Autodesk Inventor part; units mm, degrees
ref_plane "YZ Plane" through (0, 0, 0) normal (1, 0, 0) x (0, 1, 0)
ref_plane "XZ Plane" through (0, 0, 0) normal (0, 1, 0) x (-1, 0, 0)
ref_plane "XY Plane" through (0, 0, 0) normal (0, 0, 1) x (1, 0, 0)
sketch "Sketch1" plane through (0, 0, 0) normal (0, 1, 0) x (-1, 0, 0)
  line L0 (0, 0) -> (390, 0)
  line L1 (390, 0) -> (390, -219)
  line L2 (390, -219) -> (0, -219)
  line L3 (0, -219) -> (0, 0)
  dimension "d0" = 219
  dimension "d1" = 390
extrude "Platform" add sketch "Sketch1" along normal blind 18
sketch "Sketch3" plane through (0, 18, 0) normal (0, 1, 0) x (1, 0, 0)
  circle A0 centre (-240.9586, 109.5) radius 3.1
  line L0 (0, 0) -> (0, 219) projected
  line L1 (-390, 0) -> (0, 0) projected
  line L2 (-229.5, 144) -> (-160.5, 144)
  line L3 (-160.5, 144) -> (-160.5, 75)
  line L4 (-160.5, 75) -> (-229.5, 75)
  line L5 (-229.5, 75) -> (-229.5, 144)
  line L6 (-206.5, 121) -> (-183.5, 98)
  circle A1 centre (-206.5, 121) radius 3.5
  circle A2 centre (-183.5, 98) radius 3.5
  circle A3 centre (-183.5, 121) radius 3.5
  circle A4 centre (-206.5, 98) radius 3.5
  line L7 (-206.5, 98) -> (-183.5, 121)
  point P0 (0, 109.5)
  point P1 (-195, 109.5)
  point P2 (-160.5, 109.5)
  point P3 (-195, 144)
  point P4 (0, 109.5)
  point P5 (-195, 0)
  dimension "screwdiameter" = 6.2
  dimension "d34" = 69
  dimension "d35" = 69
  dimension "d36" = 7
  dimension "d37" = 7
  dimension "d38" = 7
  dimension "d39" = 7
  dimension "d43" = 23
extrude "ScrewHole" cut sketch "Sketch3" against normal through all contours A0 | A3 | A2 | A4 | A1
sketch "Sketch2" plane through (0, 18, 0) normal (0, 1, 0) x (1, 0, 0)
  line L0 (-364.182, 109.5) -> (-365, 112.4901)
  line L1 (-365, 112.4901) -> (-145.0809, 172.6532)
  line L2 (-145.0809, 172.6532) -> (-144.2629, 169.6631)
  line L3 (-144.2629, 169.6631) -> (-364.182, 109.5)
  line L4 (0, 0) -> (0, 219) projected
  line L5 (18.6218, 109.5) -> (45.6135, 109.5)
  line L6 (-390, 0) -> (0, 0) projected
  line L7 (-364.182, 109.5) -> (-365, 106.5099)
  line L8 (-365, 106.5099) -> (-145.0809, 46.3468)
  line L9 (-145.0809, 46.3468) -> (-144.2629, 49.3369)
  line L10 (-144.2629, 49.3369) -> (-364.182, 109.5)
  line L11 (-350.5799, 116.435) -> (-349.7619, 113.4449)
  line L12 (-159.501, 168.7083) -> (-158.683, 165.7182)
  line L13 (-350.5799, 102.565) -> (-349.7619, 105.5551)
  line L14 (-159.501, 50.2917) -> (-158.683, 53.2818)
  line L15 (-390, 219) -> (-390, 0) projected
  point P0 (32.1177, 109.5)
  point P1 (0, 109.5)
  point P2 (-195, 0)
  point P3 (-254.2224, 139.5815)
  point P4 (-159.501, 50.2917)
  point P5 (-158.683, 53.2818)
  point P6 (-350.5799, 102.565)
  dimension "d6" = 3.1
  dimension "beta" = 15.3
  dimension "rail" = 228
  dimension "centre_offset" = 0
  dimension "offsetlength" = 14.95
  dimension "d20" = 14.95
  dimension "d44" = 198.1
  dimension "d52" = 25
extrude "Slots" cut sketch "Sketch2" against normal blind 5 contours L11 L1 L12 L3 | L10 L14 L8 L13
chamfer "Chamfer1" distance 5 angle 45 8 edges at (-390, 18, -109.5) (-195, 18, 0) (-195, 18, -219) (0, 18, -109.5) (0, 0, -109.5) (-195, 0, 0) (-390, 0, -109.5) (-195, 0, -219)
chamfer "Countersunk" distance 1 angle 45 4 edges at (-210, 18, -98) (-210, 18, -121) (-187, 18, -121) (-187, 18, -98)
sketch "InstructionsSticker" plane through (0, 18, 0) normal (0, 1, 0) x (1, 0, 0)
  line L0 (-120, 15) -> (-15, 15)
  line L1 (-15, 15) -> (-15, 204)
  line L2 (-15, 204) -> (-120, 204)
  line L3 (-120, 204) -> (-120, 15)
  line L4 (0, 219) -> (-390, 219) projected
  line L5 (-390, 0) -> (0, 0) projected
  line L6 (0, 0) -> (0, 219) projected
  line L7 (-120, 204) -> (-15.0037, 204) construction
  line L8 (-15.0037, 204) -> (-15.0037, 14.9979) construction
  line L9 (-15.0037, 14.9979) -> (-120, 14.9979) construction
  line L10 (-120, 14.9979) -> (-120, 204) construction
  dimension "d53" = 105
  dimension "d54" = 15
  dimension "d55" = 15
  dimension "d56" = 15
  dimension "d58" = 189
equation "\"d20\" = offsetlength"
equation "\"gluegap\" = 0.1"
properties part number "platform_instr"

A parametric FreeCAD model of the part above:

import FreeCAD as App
import Part
import Sketcher
Q = App.Units.Quantity


def edges_at(feature, points):
    """Names of the edges that pass closest to the given points."""
    edges = feature.Shape.Edges
    near = lambda p: min(range(len(edges)), key=lambda i: edges[i].distToShape(Part.Vertex(*p))[0])
    return sorted({f"Edge{near(p) + 1}" for p in points})

doc = App.newDocument("Part")
body = doc.addObject("PartDesign::Body", "Body")

# Sketch on XZ plane
sketch1 = body.newObject("Sketcher::SketchObject", "Sketch")
sketch1.AttachmentSupport = (doc.getObject("XZ_Plane"), [""])
sketch1.MapMode = "FlatFace"
sketch1.addGeometry(Part.LineSegment(App.Vector(-390, 0, 0), App.Vector(0, 0, 0)), False)
sketch1.addGeometry(Part.LineSegment(App.Vector(0, 0, 0), App.Vector(0, -219, 0)), False)
sketch1.addGeometry(Part.LineSegment(App.Vector(0, -219, 0), App.Vector(-390, -219, 0)), False)
sketch1.addGeometry(Part.LineSegment(App.Vector(-390, -219, 0), App.Vector(-390, 0, 0)), False)
sketch1.addConstraint(Sketcher.Constraint("Coincident", 0, 2, 1, 1))
sketch1.addConstraint(Sketcher.Constraint("Coincident", 1, 2, 2, 1))
sketch1.addConstraint(Sketcher.Constraint("Coincident", 2, 2, 3, 1))
sketch1.addConstraint(Sketcher.Constraint("Coincident", 3, 2, 0, 1))
sketch1.addConstraint(Sketcher.Constraint("Horizontal", 0))
sketch1.addConstraint(Sketcher.Constraint("Vertical", 1))
sketch1.addConstraint(Sketcher.Constraint("Horizontal", 2))
sketch1.addConstraint(Sketcher.Constraint("Vertical", 3))
sketch1.addConstraint(Sketcher.Constraint("Coincident", 0, 2, -1, 1))
sketch1.addConstraint(Sketcher.Constraint("DistanceX", 0, 1, 0, 2, Q("390 mm")))
sketch1.addConstraint(Sketcher.Constraint("DistanceY", 1, 2, 1, 1, Q("219 mm")))
pad1 = body.newObject("PartDesign::Pad", "Pad")
pad1.Profile = sketch1
pad1.Length = 18
pad1.Reversed = True

# Sketch on XZ plane
sketch2 = body.newObject("Sketcher::SketchObject", "Sketch001")
sketch2.AttachmentSupport = (doc.getObject("XZ_Plane"), [""])
sketch2.MapMode = "FlatFace"
sketch2.AttachmentOffset = App.Placement(App.Vector(0, 0, -18), App.Rotation())
sketch2.addGeometry(Part.Circle(App.Vector(-241, -109.5, 0), App.Vector(0, 0, 1), 3.1), False)
sketch2.addGeometry(Part.Circle(App.Vector(-183.5, -121, 0), App.Vector(0, 0, 1), 3.5), False)
sketch2.addGeometry(Part.Circle(App.Vector(-183.5, -98, 0), App.Vector(0, 0, 1), 3.5), False)
sketch2.addGeometry(Part.Circle(App.Vector(-206.5, -98, 0), App.Vector(0, 0, 1), 3.5), False)
sketch2.addGeometry(Part.Circle(App.Vector(-206.5, -121, 0), App.Vector(0, 0, 1), 3.5), False)
sketch2.addConstraint(Sketcher.Constraint("Equal", 1, 2))
sketch2.addConstraint(Sketcher.Constraint("Equal", 2, 3))
sketch2.addConstraint(Sketcher.Constraint("Equal", 3, 4))
sketch2.addConstraint(Sketcher.Constraint("Horizontal", 2, 3, 3, 3))
sketch2.addConstraint(Sketcher.Constraint("Horizontal", 1, 3, 4, 3))
sketch2.addConstraint(Sketcher.Constraint("Vertical", 1, 3, 2, 3))
sketch2.addConstraint(Sketcher.Constraint("Vertical", 3, 3, 4, 3))
sketch2.addConstraint(Sketcher.Constraint("Diameter", 1, Q("7 mm")))
sketch2.addConstraint(Sketcher.Constraint("Diameter", 0, Q("6.2 mm")))
sketch2.addConstraint(Sketcher.Constraint("DistanceY", 1, 3, 2, 3, Q("23 mm")))
sketch2.addConstraint(Sketcher.Constraint("DistanceX", 3, 3, 2, 3, Q("23 mm")))
sketch2.addConstraint(Sketcher.Constraint("DistanceY", 1, 3, -1, 1, Q("121 mm")))
sketch2.addConstraint(Sketcher.Constraint("DistanceY", 0, 3, -1, 1, Q("109.5 mm")))
sketch2.addConstraint(Sketcher.Constraint("DistanceX", 1, 3, -1, 1, Q("183.5 mm")))
sketch2.addConstraint(Sketcher.Constraint("DistanceX", 0, 3, -1, 1, Q("240.9586 mm")))
pocket1 = body.newObject("PartDesign::Pocket", "Pocket")
pocket1.Profile = sketch2
pocket1.Type = "ThroughAll"
pocket1.Reversed = True

# Sketch on XZ plane
sketch3 = body.newObject("Sketcher::SketchObject", "Sketch002")
sketch3.AttachmentSupport = (doc.getObject("XZ_Plane"), [""])
sketch3.MapMode = "FlatFace"
sketch3.AttachmentOffset = App.Placement(App.Vector(0, 0, -18), App.Rotation())
sketch3.addGeometry(Part.LineSegment(App.Vector(-350.6, -116.4, 0), App.Vector(-349.8, -113.4, 0)), False)
sketch3.addGeometry(Part.LineSegment(App.Vector(-349.8, -113.4, 0), App.Vector(-158.7, -165.7, 0)), False)
sketch3.addGeometry(Part.LineSegment(App.Vector(-158.7, -165.7, 0), App.Vector(-159.5, -168.7, 0)), False)
sketch3.addGeometry(Part.LineSegment(App.Vector(-159.5, -168.7, 0), App.Vector(-350.6, -116.4, 0)), False)
sketch3.addGeometry(Part.LineSegment(App.Vector(-158.7, -53.3, 0), App.Vector(-349.8, -105.6, 0)), False)
sketch3.addGeometry(Part.LineSegment(App.Vector(-349.8, -105.6, 0), App.Vector(-350.6, -102.6, 0)), False)
sketch3.addGeometry(Part.LineSegment(App.Vector(-350.6, -102.6, 0), App.Vector(-159.5, -50.3, 0)), False)
sketch3.addGeometry(Part.LineSegment(App.Vector(-159.5, -50.3, 0), App.Vector(-158.7, -53.3, 0)), False)
sketch3.addConstraint(Sketcher.Constraint("Coincident", 0, 2, 1, 1))
sketch3.addConstraint(Sketcher.Constraint("Coincident", 1, 2, 2, 1))
sketch3.addConstraint(Sketcher.Constraint("Coincident", 2, 2, 3, 1))
sketch3.addConstraint(Sketcher.Constraint("Coincident", 3, 2, 0, 1))
sketch3.addConstraint(Sketcher.Constraint("Coincident", 4, 2, 5, 1))
sketch3.addConstraint(Sketcher.Constraint("Coincident", 5, 2, 6, 1))
sketch3.addConstraint(Sketcher.Constraint("Coincident", 6, 2, 7, 1))
sketch3.addConstraint(Sketcher.Constraint("Coincident", 7, 2, 4, 1))
sketch3.addConstraint(Sketcher.Constraint("Perpendicular", 0, 1))
sketch3.addConstraint(Sketcher.Constraint("Perpendicular", 1, 2))
sketch3.addConstraint(Sketcher.Constraint("Perpendicular", 2, 3))
sketch3.addConstraint(Sketcher.Constraint("Perpendicular", 4, 5))
sketch3.addConstraint(Sketcher.Constraint("Perpendicular", 5, 6))
sketch3.addConstraint(Sketcher.Constraint("Perpendicular", 6, 7))
sketch3.addConstraint(Sketcher.Constraint("Vertical", 0, 2, 4, 2))
sketch3.addConstraint(Sketcher.Constraint("Vertical", 3, 2, 5, 2))
sketch3.addConstraint(Sketcher.Constraint("Vertical", 2, 2, 6, 2))
sketch3.addConstraint(Sketcher.Constraint("Equal", 3, 4))
sketch3.addConstraint(Sketcher.Constraint("Angle", 1, Q("-15.3 deg")))
sketch3.addConstraint(Sketcher.Constraint("Distance", 0, Q("3.1 mm")))
sketch3.addConstraint(Sketcher.Constraint("Distance", 1, Q("198.1 mm")))
sketch3.addConstraint(Sketcher.Constraint("DistanceX", 3, 2, -1, 1, Q("350.58 mm")))
sketch3.addConstraint(Sketcher.Constraint("DistanceY", 3, 2, 4, 2, Q("10.88 mm")))
sketch3.addConstraint(Sketcher.Constraint("DistanceY", 0, 2, -1, 1, Q("113.445 mm")))
pocket2 = body.newObject("PartDesign::Pocket", "Pocket001")
pocket2.Profile = sketch3
pocket2.Length = 5
pocket2.Reversed = True
doc.recompute()

chamfer = body.newObject("PartDesign::Chamfer", "Chamfer")
chamfer.Base = (pocket2, edges_at(pocket2, [
    (-390, 18, -109.5),
    (-195, 18, 0),
    (-195, 18, -219),
    (0, 18, -109.5),
    (0, 0, -109.5),
    (-195, 0, 0),
    (-390, 0, -109.5),
    (-195, 0, -219),
]))
chamfer.Size = 5
doc.recompute()

chamfer2 = body.newObject("PartDesign::Chamfer", "Chamfer001")
chamfer2.Base = (chamfer, edges_at(chamfer, [
    (-210, 18, -98),
    (-210, 18, -121),
    (-187, 18, -121),
    (-187, 18, -98),
]))
chamfer2.Size = 1

doc.recompute()
